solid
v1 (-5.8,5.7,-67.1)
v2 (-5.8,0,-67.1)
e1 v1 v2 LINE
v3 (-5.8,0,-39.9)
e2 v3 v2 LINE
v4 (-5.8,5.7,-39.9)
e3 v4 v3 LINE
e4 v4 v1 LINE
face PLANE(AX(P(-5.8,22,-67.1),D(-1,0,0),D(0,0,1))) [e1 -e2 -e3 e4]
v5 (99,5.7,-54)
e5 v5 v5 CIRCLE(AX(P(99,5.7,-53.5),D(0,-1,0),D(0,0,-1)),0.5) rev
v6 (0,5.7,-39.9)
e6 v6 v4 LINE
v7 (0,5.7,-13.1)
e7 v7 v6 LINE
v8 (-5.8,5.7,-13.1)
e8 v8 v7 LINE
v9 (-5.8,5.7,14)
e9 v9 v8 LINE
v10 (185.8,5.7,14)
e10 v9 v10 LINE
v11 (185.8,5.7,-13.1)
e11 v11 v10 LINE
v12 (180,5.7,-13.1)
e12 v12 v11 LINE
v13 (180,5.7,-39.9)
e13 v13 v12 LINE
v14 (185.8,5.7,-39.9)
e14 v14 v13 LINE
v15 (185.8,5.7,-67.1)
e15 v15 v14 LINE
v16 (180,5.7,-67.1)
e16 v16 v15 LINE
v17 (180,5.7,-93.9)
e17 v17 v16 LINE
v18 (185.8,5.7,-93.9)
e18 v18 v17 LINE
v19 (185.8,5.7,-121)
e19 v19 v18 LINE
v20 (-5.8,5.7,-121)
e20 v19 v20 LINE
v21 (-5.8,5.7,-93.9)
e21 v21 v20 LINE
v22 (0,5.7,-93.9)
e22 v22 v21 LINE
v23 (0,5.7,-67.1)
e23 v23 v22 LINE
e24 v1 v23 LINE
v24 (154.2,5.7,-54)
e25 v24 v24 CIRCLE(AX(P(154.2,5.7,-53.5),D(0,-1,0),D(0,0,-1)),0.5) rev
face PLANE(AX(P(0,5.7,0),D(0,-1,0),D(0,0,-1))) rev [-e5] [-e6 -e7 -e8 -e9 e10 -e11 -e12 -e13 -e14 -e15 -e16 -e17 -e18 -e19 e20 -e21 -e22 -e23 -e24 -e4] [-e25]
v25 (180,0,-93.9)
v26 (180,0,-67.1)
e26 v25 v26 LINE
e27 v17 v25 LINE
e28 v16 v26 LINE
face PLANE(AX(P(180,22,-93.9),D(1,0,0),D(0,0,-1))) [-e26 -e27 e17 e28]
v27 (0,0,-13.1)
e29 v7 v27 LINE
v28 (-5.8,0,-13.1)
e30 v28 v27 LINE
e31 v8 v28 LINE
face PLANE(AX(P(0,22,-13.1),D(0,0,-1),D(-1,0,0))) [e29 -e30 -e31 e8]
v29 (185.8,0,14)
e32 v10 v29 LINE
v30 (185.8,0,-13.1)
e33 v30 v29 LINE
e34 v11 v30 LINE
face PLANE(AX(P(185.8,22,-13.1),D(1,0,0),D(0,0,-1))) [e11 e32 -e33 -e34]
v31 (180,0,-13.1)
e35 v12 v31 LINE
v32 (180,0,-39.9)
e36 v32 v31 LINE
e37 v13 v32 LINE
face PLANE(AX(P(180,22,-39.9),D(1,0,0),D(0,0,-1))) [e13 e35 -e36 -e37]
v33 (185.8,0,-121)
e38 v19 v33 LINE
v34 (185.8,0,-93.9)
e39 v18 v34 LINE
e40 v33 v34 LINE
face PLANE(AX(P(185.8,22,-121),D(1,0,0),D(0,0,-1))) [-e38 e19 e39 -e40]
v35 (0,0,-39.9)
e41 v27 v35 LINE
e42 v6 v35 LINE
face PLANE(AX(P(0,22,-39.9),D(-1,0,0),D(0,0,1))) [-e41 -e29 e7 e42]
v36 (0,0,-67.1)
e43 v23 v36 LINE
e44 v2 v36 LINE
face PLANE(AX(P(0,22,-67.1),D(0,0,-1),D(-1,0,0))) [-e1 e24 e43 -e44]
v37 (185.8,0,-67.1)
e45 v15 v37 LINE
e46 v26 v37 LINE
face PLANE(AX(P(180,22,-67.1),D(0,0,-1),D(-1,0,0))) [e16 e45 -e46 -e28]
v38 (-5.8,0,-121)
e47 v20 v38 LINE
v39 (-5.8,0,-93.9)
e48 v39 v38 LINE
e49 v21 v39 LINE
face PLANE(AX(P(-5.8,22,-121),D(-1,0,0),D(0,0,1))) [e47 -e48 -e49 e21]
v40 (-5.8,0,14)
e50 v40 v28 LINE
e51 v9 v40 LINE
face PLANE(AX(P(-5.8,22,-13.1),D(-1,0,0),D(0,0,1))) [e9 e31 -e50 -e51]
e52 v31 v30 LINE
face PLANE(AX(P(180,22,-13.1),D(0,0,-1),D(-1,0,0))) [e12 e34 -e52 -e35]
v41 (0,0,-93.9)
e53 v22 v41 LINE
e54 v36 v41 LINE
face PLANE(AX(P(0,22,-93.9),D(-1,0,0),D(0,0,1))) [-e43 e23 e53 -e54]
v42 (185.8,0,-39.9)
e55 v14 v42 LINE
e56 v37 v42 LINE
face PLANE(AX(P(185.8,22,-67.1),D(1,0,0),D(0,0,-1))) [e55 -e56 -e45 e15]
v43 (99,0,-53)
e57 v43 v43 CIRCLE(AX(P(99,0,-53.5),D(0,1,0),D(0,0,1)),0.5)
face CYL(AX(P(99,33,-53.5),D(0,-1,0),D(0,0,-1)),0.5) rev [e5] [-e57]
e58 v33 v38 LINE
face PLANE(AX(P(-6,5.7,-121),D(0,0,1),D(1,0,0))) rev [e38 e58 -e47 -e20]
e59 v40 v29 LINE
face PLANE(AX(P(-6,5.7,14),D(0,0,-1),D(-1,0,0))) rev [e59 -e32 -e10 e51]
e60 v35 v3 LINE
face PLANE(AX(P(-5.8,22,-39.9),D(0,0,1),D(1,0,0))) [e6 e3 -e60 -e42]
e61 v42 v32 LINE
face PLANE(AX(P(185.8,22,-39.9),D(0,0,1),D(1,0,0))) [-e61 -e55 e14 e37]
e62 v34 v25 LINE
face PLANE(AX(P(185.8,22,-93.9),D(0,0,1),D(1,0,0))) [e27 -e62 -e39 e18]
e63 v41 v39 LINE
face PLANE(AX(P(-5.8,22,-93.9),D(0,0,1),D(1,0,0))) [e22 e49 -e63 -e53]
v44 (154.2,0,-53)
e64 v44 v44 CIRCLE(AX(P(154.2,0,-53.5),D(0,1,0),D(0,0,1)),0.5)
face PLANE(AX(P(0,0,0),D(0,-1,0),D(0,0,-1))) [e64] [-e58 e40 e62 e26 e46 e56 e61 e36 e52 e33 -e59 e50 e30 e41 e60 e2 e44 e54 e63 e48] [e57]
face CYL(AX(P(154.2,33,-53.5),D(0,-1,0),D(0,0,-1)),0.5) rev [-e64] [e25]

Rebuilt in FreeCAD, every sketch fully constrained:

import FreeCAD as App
import Part
import Sketcher

V = App.Vector

doc = App.newDocument("Part")
body = doc.addObject("PartDesign::Body", "Body")

# Sketch on XZ plane
sketch1 = doc.addObject("Sketcher::SketchObject", "Sketch")
body.addObject(sketch1)
sketch1.AttachmentSupport = (doc.XZ_Plane, [""])
sketch1.MapMode = "FlatFace"
sketch1.addGeometry([
    Part.LineSegment(V(-6, -121, 0), V(-6, 14, 0)),
    Part.LineSegment(V(-6, 14, 0), V(186, 14, 0)),
    Part.LineSegment(V(186, 14, 0), V(186, -121, 0)),
    Part.LineSegment(V(186, -121, 0), V(-6, -121, 0)),
], False)
sketch1.addConstraint([
    Sketcher.Constraint("Coincident", 0, 2, 1, 1),
    Sketcher.Constraint("Coincident", 1, 2, 2, 1),
    Sketcher.Constraint("Coincident", 2, 2, 3, 1),
    Sketcher.Constraint("Coincident", 3, 2, 0, 1),
    Sketcher.Constraint("Vertical", 0),
    Sketcher.Constraint("Horizontal", 1),
    Sketcher.Constraint("Vertical", 2),
    Sketcher.Constraint("Horizontal", 3),
    Sketcher.Constraint("DistanceX", 1, 1, 1, 2, 192.0),
    Sketcher.Constraint("DistanceY", 0, 1, 0, 2, 135.0),
    Sketcher.Constraint("DistanceX", 0, 2, -1, 1, 6.0),
    Sketcher.Constraint("DistanceY", -1, 1, 0, 2, 14.0),
])
pad1 = doc.addObject("PartDesign::Pad", "Pad")
body.addObject(pad1)
pad1.Profile = sketch1
pad1.Length = 5.7
pad1.Reversed = True

# Sketch on XZ plane
sketch2 = doc.addObject("Sketcher::SketchObject", "Sketch001")
body.addObject(sketch2)
sketch2.AttachmentSupport = (doc.XZ_Plane, [""])
sketch2.MapMode = "FlatFace"
sketch2.addGeometry([
    Part.Circle(V(99, -53.5, 0), V(0, 0, 1), 0.5),
    Part.Circle(V(154.2, -53.5, 0), V(0, 0, 1), 0.5),
], False)
sketch2.addConstraint([
    Sketcher.Constraint("Equal", 0, 1),
    Sketcher.Constraint("Horizontal", 0, 3, 1, 3),
    Sketcher.Constraint("Diameter", 0, 1.0),
    Sketcher.Constraint("DistanceX", -1, 1, 0, 3, 99.0),
    Sketcher.Constraint("DistanceY", 0, 3, -1, 1, 53.5),
    Sketcher.Constraint("DistanceX", -1, 1, 1, 3, 154.2),
])
pocket1 = doc.addObject("PartDesign::Pocket", "Pocket")
body.addObject(pocket1)
pocket1.Profile = sketch2
pocket1.Length = 33

# Sketch on XZ plane
sketch3 = doc.addObject("Sketcher::SketchObject", "Sketch002")
body.addObject(sketch3)
sketch3.AttachmentSupport = (doc.XZ_Plane, [""])
sketch3.MapMode = "FlatFace"
sketch3.addGeometry([
    Part.LineSegment(V(-5.8, -93.9, 0), V(-5.8, -121, 0)),  # 0
    Part.LineSegment(V(-5.8, -121, 0), V(-9.8, -121, 0)),  # 1
    Part.LineSegment(V(-9.8, -121, 0), V(-9.8, 14, 0)),  # 2
    Part.LineSegment(V(-9.8, 14, 0), V(-5.8, 14, 0)),  # 3
    Part.LineSegment(V(-5.8, 14, 0), V(-5.8, -13.1, 0)),  # 4
    Part.LineSegment(V(-5.8, -13.1, 0), V(0, -13.1, 0)),  # 5
    Part.LineSegment(V(0, -13.1, 0), V(0, -39.9, 0)),  # 6
    Part.LineSegment(V(0, -39.9, 0), V(-5.8, -39.9, 0)),  # 7
    Part.LineSegment(V(-5.8, -39.9, 0), V(-5.8, -67.1, 0)),  # 8
    Part.LineSegment(V(-5.8, -67.1, 0), V(0, -67.1, 0)),  # 9
    Part.LineSegment(V(0, -67.1, 0), V(0, -93.9, 0)),  # 10
    Part.LineSegment(V(0, -93.9, 0), V(-5.8, -93.9, 0)),  # 11
    Part.LineSegment(V(189.8, -121, 0), V(185.8, -121, 0)),  # 12
    Part.LineSegment(V(185.8, -121, 0), V(185.8, -93.9, 0)),  # 13
    Part.LineSegment(V(185.8, -93.9, 0), V(180, -93.9, 0)),  # 14
    Part.LineSegment(V(180, -93.9, 0), V(180, -67.1, 0)),  # 15
    Part.LineSegment(V(180, -67.1, 0), V(185.8, -67.1, 0)),  # 16
    Part.LineSegment(V(185.8, -67.1, 0), V(185.8, -39.9, 0)),  # 17
    Part.LineSegment(V(185.8, -39.9, 0), V(180, -39.9, 0)),  # 18
    Part.LineSegment(V(180, -39.9, 0), V(180, -13.1, 0)),  # 19
    Part.LineSegment(V(180, -13.1, 0), V(185.8, -13.1, 0)),  # 20
    Part.LineSegment(V(185.8, -13.1, 0), V(185.8, 14, 0)),  # 21
    Part.LineSegment(V(185.8, 14, 0), V(189.8, 14, 0)),  # 22
    Part.LineSegment(V(189.8, 14, 0), V(189.8, -121, 0)),  # 23
], False)
sketch3.addConstraint([
    Sketcher.Constraint("Coincident", 0, 2, 1, 1),
    Sketcher.Constraint("Coincident", 1, 2, 2, 1),
    Sketcher.Constraint("Coincident", 2, 2, 3, 1),
    Sketcher.Constraint("Coincident", 3, 2, 4, 1),
    Sketcher.Constraint("Coincident", 4, 2, 5, 1),
    Sketcher.Constraint("Coincident", 5, 2, 6, 1),
    Sketcher.Constraint("Coincident", 6, 2, 7, 1),
    Sketcher.Constraint("Coincident", 7, 2, 8, 1),
    Sketcher.Constraint("Coincident", 8, 2, 9, 1),
    Sketcher.Constraint("Coincident", 9, 2, 10, 1),
    Sketcher.Constraint("Coincident", 10, 2, 11, 1),
    Sketcher.Constraint("Coincident", 11, 2, 0, 1),
    Sketcher.Constraint("Coincident", 12, 2, 13, 1),
    Sketcher.Constraint("Coincident", 13, 2, 14, 1),
    Sketcher.Constraint("Coincident", 14, 2, 15, 1),
    Sketcher.Constraint("Coincident", 15, 2, 16, 1),
    Sketcher.Constraint("Coincident", 16, 2, 17, 1),
    Sketcher.Constraint("Coincident", 17, 2, 18, 1),
    Sketcher.Constraint("Coincident", 18, 2, 19, 1),
    Sketcher.Constraint("Coincident", 19, 2, 20, 1),
    Sketcher.Constraint("Coincident", 20, 2, 21, 1),
    Sketcher.Constraint("Coincident", 21, 2, 22, 1),
    Sketcher.Constraint("Coincident", 22, 2, 23, 1),
    Sketcher.Constraint("Coincident", 23, 2, 12, 1),
    Sketcher.Constraint("Vertical", 0),
    Sketcher.Constraint("Horizontal", 1),
    Sketcher.Constraint("Vertical", 2),
    Sketcher.Constraint("Horizontal", 3),
    Sketcher.Constraint("Vertical", 4),
    Sketcher.Constraint("Horizontal", 5),
    Sketcher.Constraint("Vertical", 6),
    Sketcher.Constraint("Horizontal", 7),
    Sketcher.Constraint("Vertical", 8),
    Sketcher.Constraint("Horizontal", 9),
    Sketcher.Constraint("Vertical", 10),
    Sketcher.Constraint("Horizontal", 11),
    Sketcher.Constraint("Horizontal", 12),
    Sketcher.Constraint("Vertical", 13),
    Sketcher.Constraint("Horizontal", 14),
    Sketcher.Constraint("Vertical", 15),
    Sketcher.Constraint("Horizontal", 16),
    Sketcher.Constraint("Vertical", 17),
    Sketcher.Constraint("Horizontal", 18),
    Sketcher.Constraint("Vertical", 19),
    Sketcher.Constraint("Horizontal", 20),
    Sketcher.Constraint("Vertical", 21),
    Sketcher.Constraint("Horizontal", 22),
    Sketcher.Constraint("Vertical", 23),
    Sketcher.Constraint("PointOnObject", 5, 2, -2),
    Sketcher.Constraint("PointOnObject", 9, 2, -2),
    Sketcher.Constraint("Horizontal", 1, 2, 12, 2),
    Sketcher.Constraint("Horizontal", 11, 2, 13, 2),
    Sketcher.Constraint("Horizontal", 9, 2, 15, 2),
    Sketcher.Constraint("Horizontal", 7, 2, 17, 2),
    Sketcher.Constraint("Horizontal", 5, 2, 19, 2),
    Sketcher.Constraint("Horizontal", 3, 2, 21, 2),
    Sketcher.Constraint("Vertical", 0, 2, 3, 2),
    Sketcher.Constraint("Vertical", 4, 2, 7, 2),
    Sketcher.Constraint("Vertical", 13, 2, 16, 2),
    Sketcher.Constraint("Vertical", 15, 2, 18, 2),
    Sketcher.Constraint("Vertical", 17, 2, 20, 2),
    Sketcher.Constraint("Equal", 3, 12),
    Sketcher.Constraint("Equal", 11, 14),
    Sketcher.Constraint("Equal", 0, 4),
    Sketcher.Constraint("Equal", 6, 10),
    Sketcher.Constraint("DistanceX", 1, 2, 1, 1, 4.0),
    Sketcher.Constraint("DistanceY", 2, 1, 2, 2, 135.0),
    Sketcher.Constraint("DistanceX", 5, 1, 5, 2, 5.8),
    Sketcher.Constraint("DistanceY", 0, 2, 0, 1, 27.1),
    Sketcher.Constraint("DistanceY", 6, 2, 6, 1, 26.8),
    Sketcher.Constraint("DistanceY", 0, 2, -1, 1, 121.0),
    Sketcher.Constraint("DistanceX", -1, 1, 14, 2, 180.0),
])
pocket2 = doc.addObject("PartDesign::Pocket", "Pocket001")
body.addObject(pocket2)
pocket2.Profile = sketch3
pocket2.Length = 22

doc.recompute()
